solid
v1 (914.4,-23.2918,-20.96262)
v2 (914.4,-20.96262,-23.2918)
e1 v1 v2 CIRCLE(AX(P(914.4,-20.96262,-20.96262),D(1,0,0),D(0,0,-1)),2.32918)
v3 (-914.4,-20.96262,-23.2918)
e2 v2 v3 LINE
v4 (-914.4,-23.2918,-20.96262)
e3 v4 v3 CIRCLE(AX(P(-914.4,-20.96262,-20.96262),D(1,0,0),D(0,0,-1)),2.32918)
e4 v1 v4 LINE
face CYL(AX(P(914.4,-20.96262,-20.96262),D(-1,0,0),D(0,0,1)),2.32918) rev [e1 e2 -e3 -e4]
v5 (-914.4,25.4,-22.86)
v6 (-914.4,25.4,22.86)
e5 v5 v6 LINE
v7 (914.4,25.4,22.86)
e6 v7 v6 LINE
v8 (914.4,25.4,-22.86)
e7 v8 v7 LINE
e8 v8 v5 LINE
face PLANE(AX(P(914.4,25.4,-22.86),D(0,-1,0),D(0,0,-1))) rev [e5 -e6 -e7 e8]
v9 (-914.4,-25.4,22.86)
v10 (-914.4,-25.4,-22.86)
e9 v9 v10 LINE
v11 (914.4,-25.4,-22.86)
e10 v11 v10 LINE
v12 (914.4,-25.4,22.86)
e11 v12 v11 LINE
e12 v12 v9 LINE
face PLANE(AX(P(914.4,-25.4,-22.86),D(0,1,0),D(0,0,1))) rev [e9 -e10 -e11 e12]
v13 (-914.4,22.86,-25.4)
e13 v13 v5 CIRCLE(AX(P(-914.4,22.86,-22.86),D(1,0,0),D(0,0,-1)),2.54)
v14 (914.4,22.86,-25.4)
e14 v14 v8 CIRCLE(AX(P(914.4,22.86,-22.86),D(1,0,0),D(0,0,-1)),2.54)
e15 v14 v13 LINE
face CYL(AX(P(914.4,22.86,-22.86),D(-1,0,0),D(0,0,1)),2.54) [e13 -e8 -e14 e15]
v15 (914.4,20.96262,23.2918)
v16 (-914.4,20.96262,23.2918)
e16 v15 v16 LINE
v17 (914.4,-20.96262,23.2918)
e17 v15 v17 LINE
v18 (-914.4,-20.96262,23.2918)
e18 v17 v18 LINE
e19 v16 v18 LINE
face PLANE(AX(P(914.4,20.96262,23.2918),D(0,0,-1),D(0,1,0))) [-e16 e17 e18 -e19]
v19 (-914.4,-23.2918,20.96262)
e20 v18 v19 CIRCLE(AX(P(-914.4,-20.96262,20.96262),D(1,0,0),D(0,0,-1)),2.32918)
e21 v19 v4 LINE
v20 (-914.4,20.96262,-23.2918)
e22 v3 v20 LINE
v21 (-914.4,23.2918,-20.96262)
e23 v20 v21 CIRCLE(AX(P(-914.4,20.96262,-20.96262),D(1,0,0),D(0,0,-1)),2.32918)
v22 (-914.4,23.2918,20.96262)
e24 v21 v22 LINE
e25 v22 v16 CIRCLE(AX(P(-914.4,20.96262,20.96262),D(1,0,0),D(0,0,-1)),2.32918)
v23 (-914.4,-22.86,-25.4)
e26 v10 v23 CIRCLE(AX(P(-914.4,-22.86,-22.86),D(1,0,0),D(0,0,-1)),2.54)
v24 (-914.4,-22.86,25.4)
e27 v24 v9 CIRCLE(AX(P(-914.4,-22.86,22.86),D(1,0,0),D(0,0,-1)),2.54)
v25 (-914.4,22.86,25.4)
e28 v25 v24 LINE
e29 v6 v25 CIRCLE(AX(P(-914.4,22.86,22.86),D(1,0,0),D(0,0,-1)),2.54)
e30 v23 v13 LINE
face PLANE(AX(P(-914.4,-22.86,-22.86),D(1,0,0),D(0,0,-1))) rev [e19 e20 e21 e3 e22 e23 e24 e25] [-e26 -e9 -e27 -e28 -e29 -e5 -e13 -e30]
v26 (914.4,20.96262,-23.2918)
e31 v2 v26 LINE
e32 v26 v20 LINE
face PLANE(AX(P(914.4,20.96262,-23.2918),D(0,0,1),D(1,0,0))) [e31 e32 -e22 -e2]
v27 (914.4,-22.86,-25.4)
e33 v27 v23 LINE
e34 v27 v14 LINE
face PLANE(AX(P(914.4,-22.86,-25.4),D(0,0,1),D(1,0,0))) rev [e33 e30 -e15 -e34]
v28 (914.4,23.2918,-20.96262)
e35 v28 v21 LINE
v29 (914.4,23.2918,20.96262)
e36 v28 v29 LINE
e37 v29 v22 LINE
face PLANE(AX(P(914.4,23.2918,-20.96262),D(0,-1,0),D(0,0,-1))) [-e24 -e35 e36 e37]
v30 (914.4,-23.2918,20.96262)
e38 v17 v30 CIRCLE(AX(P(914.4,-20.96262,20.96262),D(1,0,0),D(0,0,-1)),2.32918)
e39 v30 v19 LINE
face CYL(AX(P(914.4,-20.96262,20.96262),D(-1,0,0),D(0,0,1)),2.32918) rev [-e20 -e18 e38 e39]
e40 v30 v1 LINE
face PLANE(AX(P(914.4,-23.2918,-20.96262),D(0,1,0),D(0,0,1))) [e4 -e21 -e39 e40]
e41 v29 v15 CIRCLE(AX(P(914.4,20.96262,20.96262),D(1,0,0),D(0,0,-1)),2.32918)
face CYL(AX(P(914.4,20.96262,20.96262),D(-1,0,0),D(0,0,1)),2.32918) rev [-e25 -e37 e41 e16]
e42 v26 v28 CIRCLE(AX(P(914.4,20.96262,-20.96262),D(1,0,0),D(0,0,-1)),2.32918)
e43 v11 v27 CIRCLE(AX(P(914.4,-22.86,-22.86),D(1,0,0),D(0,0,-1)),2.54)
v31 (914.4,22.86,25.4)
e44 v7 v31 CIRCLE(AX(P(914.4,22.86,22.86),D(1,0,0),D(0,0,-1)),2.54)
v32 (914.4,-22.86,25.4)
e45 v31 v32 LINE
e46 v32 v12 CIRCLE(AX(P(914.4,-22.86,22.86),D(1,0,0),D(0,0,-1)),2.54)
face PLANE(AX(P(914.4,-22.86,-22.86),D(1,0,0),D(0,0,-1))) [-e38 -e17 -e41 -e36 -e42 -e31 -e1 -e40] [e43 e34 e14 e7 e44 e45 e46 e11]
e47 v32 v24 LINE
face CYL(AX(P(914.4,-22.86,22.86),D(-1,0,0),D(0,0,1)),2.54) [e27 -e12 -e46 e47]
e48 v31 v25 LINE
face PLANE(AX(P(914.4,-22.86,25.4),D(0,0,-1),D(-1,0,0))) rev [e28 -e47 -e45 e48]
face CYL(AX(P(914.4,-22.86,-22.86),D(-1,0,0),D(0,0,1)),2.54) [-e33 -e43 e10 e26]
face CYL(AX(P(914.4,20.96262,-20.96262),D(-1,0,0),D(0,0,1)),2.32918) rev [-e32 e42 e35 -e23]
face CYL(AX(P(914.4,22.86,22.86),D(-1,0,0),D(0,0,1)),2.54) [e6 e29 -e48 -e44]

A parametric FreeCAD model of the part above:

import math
import FreeCAD as App
import Part
import Sketcher
Q = App.Units.Quantity

doc = App.newDocument("Part")
body = doc.addObject("PartDesign::Body", "Body")

# Sketch on YZ plane
sketch1 = body.newObject("Sketcher::SketchObject", "Sketch")
sketch1.AttachmentSupport = (doc.getObject("YZ_Plane"), [""])
sketch1.MapMode = "FlatFace"
sketch1.addGeometry([
    Part.LineSegment(App.Vector(-22.9, -25.4, 0), App.Vector(22.9, -25.4, 0)),  # 0
    Part.ArcOfCircle(Part.Circle(App.Vector(22.9, -22.9, 0), App.Vector(0, 0, 1), 2.5), math.radians(-90), math.radians(0)),  # 1
    Part.LineSegment(App.Vector(25.4, -22.9, 0), App.Vector(25.4, 22.9, 0)),  # 2
    Part.ArcOfCircle(Part.Circle(App.Vector(22.9, 22.9, 0), App.Vector(0, 0, 1), 2.5), math.radians(0), math.radians(90)),  # 3
    Part.LineSegment(App.Vector(22.9, 25.4, 0), App.Vector(-22.9, 25.4, 0)),  # 4
    Part.ArcOfCircle(Part.Circle(App.Vector(-22.9, 22.9, 0), App.Vector(0, 0, 1), 2.5), math.radians(90), math.radians(180)),  # 5
    Part.LineSegment(App.Vector(-25.4, 22.9, 0), App.Vector(-25.4, -22.9, 0)),  # 6
    Part.ArcOfCircle(Part.Circle(App.Vector(-22.9, -22.9, 0), App.Vector(0, 0, 1), 2.5), math.radians(-180), math.radians(-90)),  # 7
    Part.ArcOfCircle(Part.Circle(App.Vector(21, -21, 0), App.Vector(0, 0, 1), 2.3), math.radians(-90), math.radians(0)),  # 8
    Part.LineSegment(App.Vector(21, -23.3, 0), App.Vector(-21, -23.3, 0)),  # 9
    Part.ArcOfCircle(Part.Circle(App.Vector(-21, -21, 0), App.Vector(0, 0, 1), 2.3), math.radians(180), math.radians(270)),  # 10
    Part.LineSegment(App.Vector(-23.3, -21, 0), App.Vector(-23.3, 21, 0)),  # 11
    Part.ArcOfCircle(Part.Circle(App.Vector(-21, 21, 0), App.Vector(0, 0, 1), 2.3), math.radians(90), math.radians(180)),  # 12
    Part.LineSegment(App.Vector(-21, 23.3, 0), App.Vector(21, 23.3, 0)),  # 13
    Part.ArcOfCircle(Part.Circle(App.Vector(21, 21, 0), App.Vector(0, 0, 1), 2.3), math.radians(0), math.radians(90)),  # 14
    Part.LineSegment(App.Vector(23.3, 21, 0), App.Vector(23.3, -21, 0)),  # 15
], False)
sketch1.addConstraint([
    Sketcher.Constraint("Tangent", 0, 2, 1, 1),
    Sketcher.Constraint("Tangent", 1, 2, 2, 1),
    Sketcher.Constraint("Tangent", 2, 2, 3, 1),
    Sketcher.Constraint("Tangent", 3, 2, 4, 1),
    Sketcher.Constraint("Tangent", 4, 2, 5, 1),
    Sketcher.Constraint("Tangent", 5, 2, 6, 1),
    Sketcher.Constraint("Tangent", 6, 2, 7, 1),
    Sketcher.Constraint("Tangent", 7, 2, 0, 1),
    Sketcher.Constraint("Tangent", 8, 1, 9, 1),
    Sketcher.Constraint("Tangent", 9, 2, 10, 2),
    Sketcher.Constraint("Tangent", 10, 1, 11, 1),
    Sketcher.Constraint("Tangent", 11, 2, 12, 2),
    Sketcher.Constraint("Tangent", 12, 1, 13, 1),
    Sketcher.Constraint("Tangent", 13, 2, 14, 2),
    Sketcher.Constraint("Tangent", 14, 1, 15, 1),
    Sketcher.Constraint("Tangent", 15, 2, 8, 2),
    Sketcher.Constraint("Horizontal", 0),
    Sketcher.Constraint("Vertical", 2),
    Sketcher.Constraint("Horizontal", 4),
    Sketcher.Constraint("Vertical", 6),
    Sketcher.Constraint("Horizontal", 9),
    Sketcher.Constraint("Vertical", 11),
    Sketcher.Constraint("Horizontal", 13),
    Sketcher.Constraint("Vertical", 15),
    Sketcher.Constraint("Equal", 1, 3),
    Sketcher.Constraint("Equal", 3, 5),
    Sketcher.Constraint("Equal", 5, 7),
    Sketcher.Constraint("Equal", 8, 10),
    Sketcher.Constraint("Equal", 10, 12),
    Sketcher.Constraint("Equal", 12, 14),
    Sketcher.Constraint("Symmetric", 1, 3, 5, 3, -1, 1),
    Sketcher.Constraint("Symmetric", 8, 3, 12, 3, -1, 1),
    Sketcher.Constraint("Equal", 4, 2),
    Sketcher.Constraint("Equal", 13, 11),
    Sketcher.Constraint("Radius", 1, Q("0.1 in")),
    Sketcher.Constraint("DistanceX", 0, 1, 0, 2, Q("1.8 in")),
    Sketcher.Constraint("Radius", 8, Q("0.0917 in")),
    Sketcher.Constraint("DistanceX", 9, 2, 9, 1, Q("1.6506 in")),
])
pad1 = body.newObject("PartDesign::Pad", "Pad")
pad1.Profile = sketch1
pad1.Type = "TwoLengths"
pad1.Length = Q("36 in")
pad1.Length2 = Q("36 in")

doc.recompute()
